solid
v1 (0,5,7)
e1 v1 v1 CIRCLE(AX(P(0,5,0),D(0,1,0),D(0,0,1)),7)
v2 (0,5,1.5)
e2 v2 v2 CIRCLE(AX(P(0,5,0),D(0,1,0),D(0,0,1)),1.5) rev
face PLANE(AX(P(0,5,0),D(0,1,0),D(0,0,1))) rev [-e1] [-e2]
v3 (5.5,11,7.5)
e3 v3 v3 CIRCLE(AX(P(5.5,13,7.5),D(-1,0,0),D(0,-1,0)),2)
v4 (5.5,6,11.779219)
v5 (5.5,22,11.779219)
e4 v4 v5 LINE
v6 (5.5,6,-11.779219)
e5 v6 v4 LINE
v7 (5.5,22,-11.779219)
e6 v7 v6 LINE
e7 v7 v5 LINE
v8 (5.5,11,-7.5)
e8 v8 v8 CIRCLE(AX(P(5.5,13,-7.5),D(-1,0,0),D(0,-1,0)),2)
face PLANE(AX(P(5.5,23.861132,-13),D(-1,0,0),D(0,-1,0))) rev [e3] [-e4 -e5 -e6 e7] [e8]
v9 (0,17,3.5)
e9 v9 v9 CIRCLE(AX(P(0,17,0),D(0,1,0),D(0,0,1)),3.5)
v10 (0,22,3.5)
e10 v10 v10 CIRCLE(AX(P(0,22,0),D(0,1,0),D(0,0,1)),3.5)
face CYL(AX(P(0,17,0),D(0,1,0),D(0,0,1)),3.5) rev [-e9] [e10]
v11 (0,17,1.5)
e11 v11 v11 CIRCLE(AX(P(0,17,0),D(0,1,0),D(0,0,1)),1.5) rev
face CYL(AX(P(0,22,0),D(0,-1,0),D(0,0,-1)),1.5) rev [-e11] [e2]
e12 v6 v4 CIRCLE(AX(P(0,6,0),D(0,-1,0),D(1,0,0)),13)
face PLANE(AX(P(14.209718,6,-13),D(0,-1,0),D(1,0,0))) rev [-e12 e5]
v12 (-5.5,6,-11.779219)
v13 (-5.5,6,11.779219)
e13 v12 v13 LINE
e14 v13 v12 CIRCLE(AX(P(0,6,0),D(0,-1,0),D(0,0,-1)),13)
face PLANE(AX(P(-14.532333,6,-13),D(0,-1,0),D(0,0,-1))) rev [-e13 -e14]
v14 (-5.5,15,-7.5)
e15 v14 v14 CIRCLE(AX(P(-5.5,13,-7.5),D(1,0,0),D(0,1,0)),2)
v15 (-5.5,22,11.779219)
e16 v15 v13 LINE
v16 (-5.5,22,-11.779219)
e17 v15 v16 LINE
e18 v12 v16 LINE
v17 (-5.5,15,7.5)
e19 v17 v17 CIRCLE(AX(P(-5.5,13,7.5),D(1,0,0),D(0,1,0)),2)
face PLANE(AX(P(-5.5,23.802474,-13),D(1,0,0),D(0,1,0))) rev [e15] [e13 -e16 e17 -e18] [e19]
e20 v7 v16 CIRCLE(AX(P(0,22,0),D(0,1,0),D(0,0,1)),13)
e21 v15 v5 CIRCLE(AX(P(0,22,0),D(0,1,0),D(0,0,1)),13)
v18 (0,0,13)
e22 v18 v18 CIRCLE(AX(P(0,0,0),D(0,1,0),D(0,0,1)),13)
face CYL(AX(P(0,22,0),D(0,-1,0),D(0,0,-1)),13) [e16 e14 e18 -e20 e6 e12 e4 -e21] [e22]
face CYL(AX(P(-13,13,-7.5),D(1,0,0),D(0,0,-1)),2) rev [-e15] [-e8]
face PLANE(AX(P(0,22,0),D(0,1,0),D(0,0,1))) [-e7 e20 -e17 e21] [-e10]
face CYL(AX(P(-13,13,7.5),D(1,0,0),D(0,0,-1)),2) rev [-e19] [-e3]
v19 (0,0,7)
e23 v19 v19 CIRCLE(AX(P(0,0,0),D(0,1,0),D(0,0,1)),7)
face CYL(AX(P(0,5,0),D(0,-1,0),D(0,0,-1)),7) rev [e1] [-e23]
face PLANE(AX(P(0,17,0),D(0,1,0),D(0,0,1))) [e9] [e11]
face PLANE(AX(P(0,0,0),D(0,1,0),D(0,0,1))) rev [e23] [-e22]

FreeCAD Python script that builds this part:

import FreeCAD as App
import Part
import Sketcher

V = App.Vector
Q = App.Units.Quantity


def add_polygon(sketch, points):
    """Adds a closed chain of lines whose ends are joined by coincident constraints."""
    first, n = sketch.GeometryCount, len(points)
    for a, b in zip(points, points[1:] + points[:1]):
        sketch.addGeometry(Part.LineSegment(App.Vector(*a, 0), App.Vector(*b, 0)), False)
    for i in range(n):
        sketch.addConstraint(Sketcher.Constraint("Coincident", first + i, 2, first + (i + 1) % n, 1))

doc = App.newDocument("Part")
body = doc.addObject("PartDesign::Body", "Body")

sketch1 = body.newObject("Sketcher::SketchObject", "Sketch")
sketch1.AttachmentSupport = (doc.getObject("XZ_Plane"), [""])
sketch1.MapMode = "FlatFace"
sketch1.addGeometry(Part.Circle(V(0, 0, 0), V(0, 0, 1), 13), False)
sketch1.addConstraint(Sketcher.Constraint("Coincident", 0, 3, -1, 1))
sketch1.addConstraint(Sketcher.Constraint("Diameter", 0, Q("26 mm")))
pad1 = body.newObject("PartDesign::Pad", "Pad")
pad1.Profile = sketch1
pad1.Length = 22
pad1.Reversed = True

sketch2 = body.newObject("Sketcher::SketchObject", "Sketch001")
sketch2.AttachmentSupport = (doc.getObject("XZ_Plane"), [""])
sketch2.MapMode = "FlatFace"
sketch2.addGeometry(Part.Circle(V(0, 0, 0), V(0, 0, 1), 7), False)
sketch2.addConstraint(Sketcher.Constraint("Coincident", 0, 3, -1, 1))
sketch2.addConstraint(Sketcher.Constraint("Diameter", 0, Q("14 mm")))
pocket1 = body.newObject("PartDesign::Pocket", "Pocket")
pocket1.Profile = sketch2
pocket1.Length = 5

sketch3 = body.newObject("Sketcher::SketchObject", "Sketch002")
sketch3.AttachmentSupport = (doc.getObject("XY_Plane"), [""])
sketch3.MapMode = "FlatFace"
add_polygon(sketch3, [(6, 24), (6, 6), (14, 6), (14, 24)])
add_polygon(sketch3, [(-15, 24), (-15, 6), (-6, 6), (-6, 24)])
sketch3.addConstraint(Sketcher.Constraint("Vertical", 0))
sketch3.addConstraint(Sketcher.Constraint("Horizontal", 1))
sketch3.addConstraint(Sketcher.Constraint("Vertical", 2))
sketch3.addConstraint(Sketcher.Constraint("Horizontal", 3))
sketch3.addConstraint(Sketcher.Constraint("Vertical", 4))
sketch3.addConstraint(Sketcher.Constraint("Horizontal", 5))
sketch3.addConstraint(Sketcher.Constraint("Vertical", 6))
sketch3.addConstraint(Sketcher.Constraint("Horizontal", 7))
sketch3.addConstraint(Sketcher.Constraint("Symmetric", 0, 2, 5, 2, -2))
sketch3.addConstraint(Sketcher.Constraint("DistanceY", -1, 1, 0, 2, Q("6 mm")))
sketch3.addConstraint(Sketcher.Constraint("DistanceX", 5, 2, 0, 2, Q("11 mm")))
sketch3.addConstraint(Sketcher.Constraint("DistanceY", 0, 2, 0, 1, Q("17.861132 mm")))
sketch3.addConstraint(Sketcher.Constraint("DistanceX", 1, 1, 1, 2, Q("8.709718 mm")))
sketch3.addConstraint(Sketcher.Constraint("DistanceX", 5, 1, 5, 2, Q("9.032333 mm")))
sketch3.addConstraint(Sketcher.Constraint("DistanceY", 4, 2, 4, 1, Q("17.802474 mm")))
pocket2 = body.newObject("PartDesign::Pocket", "Pocket001")
pocket2.Profile = sketch3
pocket2.Type = "ThroughAll"
pocket2.Midplane = True

sketch4 = body.newObject("Sketcher::SketchObject", "Sketch003")
sketch4.AttachmentSupport = (doc.getObject("YZ_Plane"), [""])
sketch4.MapMode = "FlatFace"
sketch4.addGeometry(Part.Circle(V(13, 7.5, 0), V(0, 0, 1), 2), False)
sketch4.addGeometry(Part.Circle(V(13, -7.5, 0), V(0, 0, 1), 2), False)
sketch4.addConstraint(Sketcher.Constraint("Equal", 0, 1))
sketch4.addConstraint(Sketcher.Constraint("Symmetric", 0, 3, 1, 3, -1))
sketch4.addConstraint(Sketcher.Constraint("Diameter", 0, Q("4 mm")))
sketch4.addConstraint(Sketcher.Constraint("DistanceX", -1, 1, 0, 3, Q("13 mm")))
sketch4.addConstraint(Sketcher.Constraint("DistanceY", 1, 3, 0, 3, Q("15 mm")))
pocket3 = body.newObject("PartDesign::Pocket", "Pocket002")
pocket3.Profile = sketch4
pocket3.Type = "ThroughAll"
pocket3.Midplane = True

sketch5 = body.newObject("Sketcher::SketchObject", "Sketch004")
sketch5.AttachmentSupport = (doc.getObject("XZ_Plane"), [""])
sketch5.MapMode = "FlatFace"
sketch5.AttachmentOffset = App.Placement(V(0, 0, -22), App.Rotation())
sketch5.addGeometry(Part.Circle(V(0, 0, 0), V(0, 0, 1), 3.5), False)
sketch5.addConstraint(Sketcher.Constraint("Coincident", 0, 3, -1, 1))
sketch5.addConstraint(Sketcher.Constraint("Diameter", 0, Q("7 mm")))
pocket4 = body.newObject("PartDesign::Pocket", "Pocket003")
pocket4.Profile = sketch5
pocket4.Length = 5
pocket4.Reversed = True

sketch6 = body.newObject("Sketcher::SketchObject", "Sketch005")
sketch6.AttachmentSupport = (doc.getObject("XZ_Plane"), [""])
sketch6.MapMode = "FlatFace"
sketch6.addGeometry(Part.Circle(V(0, 0, 0), V(0, 0, 1), 1.5), False)
sketch6.addConstraint(Sketcher.Constraint("Coincident", 0, 3, -1, 1))
sketch6.addConstraint(Sketcher.Constraint("Diameter", 0, Q("3 mm")))
pocket5 = body.newObject("PartDesign::Pocket", "Pocket004")
pocket5.Profile = sketch6
pocket5.Type = "ThroughAll"

doc.recompute()
